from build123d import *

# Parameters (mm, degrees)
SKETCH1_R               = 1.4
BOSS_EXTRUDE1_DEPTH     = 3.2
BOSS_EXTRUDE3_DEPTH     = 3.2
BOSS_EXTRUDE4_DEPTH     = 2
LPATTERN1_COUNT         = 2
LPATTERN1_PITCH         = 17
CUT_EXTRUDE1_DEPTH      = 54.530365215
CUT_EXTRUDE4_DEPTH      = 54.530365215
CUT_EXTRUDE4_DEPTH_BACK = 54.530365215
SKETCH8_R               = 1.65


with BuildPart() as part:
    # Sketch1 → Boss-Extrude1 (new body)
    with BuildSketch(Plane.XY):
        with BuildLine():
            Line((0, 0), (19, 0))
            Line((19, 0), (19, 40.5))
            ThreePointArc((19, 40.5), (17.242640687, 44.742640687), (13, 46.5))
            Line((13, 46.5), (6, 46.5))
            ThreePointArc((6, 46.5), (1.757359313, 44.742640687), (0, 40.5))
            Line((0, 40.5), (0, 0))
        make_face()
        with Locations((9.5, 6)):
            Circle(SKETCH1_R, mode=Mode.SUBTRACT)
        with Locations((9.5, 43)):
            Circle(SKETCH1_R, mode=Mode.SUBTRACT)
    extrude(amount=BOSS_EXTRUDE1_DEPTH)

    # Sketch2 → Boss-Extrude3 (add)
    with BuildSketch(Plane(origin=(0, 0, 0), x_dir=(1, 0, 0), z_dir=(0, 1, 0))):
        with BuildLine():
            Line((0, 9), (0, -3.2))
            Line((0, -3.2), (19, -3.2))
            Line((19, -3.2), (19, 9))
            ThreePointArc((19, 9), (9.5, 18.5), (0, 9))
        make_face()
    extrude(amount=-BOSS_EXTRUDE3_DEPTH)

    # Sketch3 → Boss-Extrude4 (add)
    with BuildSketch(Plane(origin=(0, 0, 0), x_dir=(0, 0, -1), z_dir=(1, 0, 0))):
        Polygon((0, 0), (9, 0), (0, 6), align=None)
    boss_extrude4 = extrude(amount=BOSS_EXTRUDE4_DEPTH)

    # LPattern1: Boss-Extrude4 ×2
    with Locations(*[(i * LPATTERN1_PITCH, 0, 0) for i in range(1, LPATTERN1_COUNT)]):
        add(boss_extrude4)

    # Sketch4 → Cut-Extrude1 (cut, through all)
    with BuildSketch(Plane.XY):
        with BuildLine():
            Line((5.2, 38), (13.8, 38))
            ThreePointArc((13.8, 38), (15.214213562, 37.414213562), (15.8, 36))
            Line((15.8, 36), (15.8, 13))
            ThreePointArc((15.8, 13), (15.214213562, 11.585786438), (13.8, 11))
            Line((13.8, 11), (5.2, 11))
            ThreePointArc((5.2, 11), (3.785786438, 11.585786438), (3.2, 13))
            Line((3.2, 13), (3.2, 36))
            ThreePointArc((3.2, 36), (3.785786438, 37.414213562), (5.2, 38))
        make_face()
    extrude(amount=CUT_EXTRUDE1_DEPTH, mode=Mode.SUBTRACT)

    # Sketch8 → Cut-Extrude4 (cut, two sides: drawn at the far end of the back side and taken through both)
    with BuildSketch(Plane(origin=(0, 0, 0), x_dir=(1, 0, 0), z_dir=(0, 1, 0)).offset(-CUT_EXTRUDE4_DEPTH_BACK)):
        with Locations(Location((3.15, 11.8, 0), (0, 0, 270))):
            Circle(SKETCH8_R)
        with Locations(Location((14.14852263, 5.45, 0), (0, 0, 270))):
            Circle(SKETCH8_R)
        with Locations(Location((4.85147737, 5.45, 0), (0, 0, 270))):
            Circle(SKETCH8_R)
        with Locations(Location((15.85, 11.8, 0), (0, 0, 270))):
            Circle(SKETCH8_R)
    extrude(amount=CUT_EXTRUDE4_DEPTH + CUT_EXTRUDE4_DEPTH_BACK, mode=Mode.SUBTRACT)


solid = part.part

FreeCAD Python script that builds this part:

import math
import FreeCAD as App
import Part
import Sketcher
from FreeCAD import Vector
Q = App.Units.Quantity


def add_polygon(sketch, points):
    """Adds a closed chain of lines whose ends are joined by coincident constraints."""
    first, n = sketch.GeometryCount, len(points)
    for a, b in zip(points, points[1:] + points[:1]):
        sketch.addGeometry(Part.LineSegment(App.Vector(*a, 0), App.Vector(*b, 0)), False)
    for i in range(n):
        sketch.addConstraint(Sketcher.Constraint("Coincident", first + i, 2, first + (i + 1) % n, 1))

doc = App.newDocument("Part")
params = doc.addObject("Spreadsheet::Sheet", "Params")
for row, (alias, value) in enumerate([
    ("sketch1_radius", "6 mm"),
    ("sketch1_diameter", "2.8 mm"),
    ("sketch1_width", "19 mm"),
    ("sketch1_height", "40.5 mm"),
    ("pad1_length", "3.2 mm"),
    ("sketch2_radius", "9.5 mm"),
    ("sketch2_height", "12.2 mm"),
    ("pad2_length", "3.2 mm"),
    ("sketch3_width", "6 mm"),
    ("sketch3_height", "9 mm"),
    ("pad3_length", "2 mm"),
    ("linearpattern_pitch", "17 mm"),
    ("sketch4_radius", "2 mm"),
    ("sketch4_height", "23 mm"),
    ("sketch4_width", "8.6 mm"),
    ("sketch5_diameter", "3.3 mm"),
], start=1):
    params.set(f"A{row}", alias)
    params.set(f"B{row}", "=" + value)
    params.setAlias(f"B{row}", alias)

body = doc.addObject("PartDesign::Body", "Body")

sketch1 = body.newObject("Sketcher::SketchObject", "Sketch")
sketch1.AttachmentSupport = (doc.getObject("XY_Plane"), [""])
sketch1.MapMode = "FlatFace"
sketch1.addGeometry([
    Part.LineSegment(Vector(0, 0, 0), Vector(19, 0, 0)),
    Part.LineSegment(Vector(19, 0, 0), Vector(19, 40.5, 0)),
    Part.ArcOfCircle(Part.Circle(Vector(13, 40.5, 0), Vector(0, 0, 1), 6), math.radians(0), math.radians(90)),
    Part.LineSegment(Vector(13, 46.5, 0), Vector(6, 46.5, 0)),
    Part.ArcOfCircle(Part.Circle(Vector(6, 40.5, 0), Vector(0, 0, 1), 6), math.radians(90), math.radians(180)),
    Part.LineSegment(Vector(0, 40.5, 0), Vector(0, 0, 0)),
    Part.Circle(Vector(9.5, 6, 0), Vector(0, 0, 1), 1.4),
    Part.Circle(Vector(9.5, 43, 0), Vector(0, 0, 1), 1.4),
], False)
sketch1.addConstraint([
    Sketcher.Constraint("Coincident", 0, 2, 1, 1),
    Sketcher.Constraint("Tangent", 1, 2, 2, 1),
    Sketcher.Constraint("Tangent", 2, 2, 3, 1),
    Sketcher.Constraint("Tangent", 3, 2, 4, 1),
    Sketcher.Constraint("Tangent", 4, 2, 5, 1),
    Sketcher.Constraint("Coincident", 5, 2, 0, 1),
    Sketcher.Constraint("Horizontal", 0),
    Sketcher.Constraint("Vertical", 1),
    Sketcher.Constraint("Horizontal", 3),
    Sketcher.Constraint("Vertical", 5),
    Sketcher.Constraint("Coincident", 5, 2, -1, 1),
    Sketcher.Constraint("Equal", 2, 4),
    Sketcher.Constraint("Equal", 6, 7),
    Sketcher.Constraint("Vertical", 6, 3, 7, 3),
    Sketcher.Constraint("Radius", 2, Q("6 mm")),
    Sketcher.Constraint("Diameter", 6, Q("2.8 mm")),
    Sketcher.Constraint("DistanceX", 0, 1, 0, 2, Q("19 mm")),
    Sketcher.Constraint("DistanceY", 1, 1, 1, 2, Q("40.5 mm")),
    Sketcher.Constraint("DistanceY", -1, 1, 6, 3, Q("6 mm")),
    Sketcher.Constraint("DistanceY", -1, 1, 7, 3, Q("43 mm")),
    Sketcher.Constraint("DistanceX", -1, 1, 6, 3, Q("9.5 mm")),
])
sketch1.setExpression("Constraints[14]", "Params.sketch1_radius")
sketch1.setExpression("Constraints[15]", "Params.sketch1_diameter")
sketch1.setExpression("Constraints[16]", "Params.sketch1_width")
sketch1.setExpression("Constraints[17]", "Params.sketch1_height")
pad1 = body.newObject("PartDesign::Pad", "Pad")
pad1.Profile = sketch1
pad1.setExpression("Length", "Params.pad1_length")

sketch2 = body.newObject("Sketcher::SketchObject", "Sketch001")
sketch2.AttachmentSupport = (doc.getObject("XZ_Plane"), [""])
sketch2.MapMode = "FlatFace"
sketch2.addGeometry([
    Part.LineSegment(Vector(0, -9, 0), Vector(0, 3, 0)),
    Part.LineSegment(Vector(0, 3, 0), Vector(19, 3, 0)),
    Part.LineSegment(Vector(19, 3, 0), Vector(19, -9, 0)),
    Part.ArcOfCircle(Part.Circle(Vector(10, -9, 0), Vector(0, 0, 1), 10), math.radians(180), math.radians(360)),
], False)
sketch2.addConstraint([
    Sketcher.Constraint("Coincident", 0, 2, 1, 1),
    Sketcher.Constraint("Coincident", 1, 2, 2, 1),
    Sketcher.Constraint("Tangent", 2, 2, 3, 2),
    Sketcher.Constraint("Tangent", 3, 1, 0, 1),
    Sketcher.Constraint("Vertical", 0),
    Sketcher.Constraint("Horizontal", 1),
    Sketcher.Constraint("Vertical", 2),
    Sketcher.Constraint("PointOnObject", 0, 2, -2),
    Sketcher.Constraint("Radius", 3, Q("9.5 mm")),
    Sketcher.Constraint("DistanceY", 0, 1, 0, 2, Q("12.2 mm")),
    Sketcher.Constraint("DistanceY", 3, 3, -1, 1, Q("9 mm")),
])
sketch2.setExpression("Constraints[8]", "Params.sketch2_radius")
sketch2.setExpression("Constraints[9]", "Params.sketch2_height")
pad2 = body.newObject("PartDesign::Pad", "Pad001")
pad2.Profile = sketch2
pad2.setExpression("Length", "Params.pad2_length")

sketch3 = body.newObject("Sketcher::SketchObject", "Sketch002")
sketch3.AttachmentSupport = (doc.getObject("YZ_Plane"), [""])
sketch3.MapMode = "FlatFace"
add_polygon(sketch3, [(0, 0), (0, -9), (6, 0)])
sketch3.addConstraint([
    Sketcher.Constraint("Vertical", 0),
    Sketcher.Constraint("Horizontal", 2),
    Sketcher.Constraint("Coincident", 2, 2, -1, 1),
    Sketcher.Constraint("DistanceX", 2, 2, 2, 1, Q("6 mm")),
    Sketcher.Constraint("DistanceY", 0, 2, 0, 1, Q("9 mm")),
])
sketch3.setExpression("Constraints[6]", "Params.sketch3_width")
sketch3.setExpression("Constraints[7]", "Params.sketch3_height")
pad3 = body.newObject("PartDesign::Pad", "Pad002")
pad3.Profile = sketch3
pad3.setExpression("Length", "Params.pad3_length")
doc.recompute()

linearpattern = body.newObject("PartDesign::LinearPattern", "LinearPattern")
linearpattern.Originals = [pad3]
linearpattern.Direction = (doc.getObject("X_Axis"), [""])
linearpattern.Mode = "offset"
linearpattern.setExpression("Offset", "Params.linearpattern_pitch")
linearpattern.Occurrences = 2
body.Tip = linearpattern

sketch4 = body.newObject("Sketcher::SketchObject", "Sketch003")
sketch4.AttachmentSupport = (doc.getObject("XY_Plane"), [""])
sketch4.MapMode = "FlatFace"
sketch4.addGeometry([
    Part.LineSegment(Vector(13.8, 38, 0), Vector(5.2, 38, 0)),
    Part.ArcOfCircle(Part.Circle(Vector(5.2, 36, 0), Vector(0, 0, 1), 2), math.radians(90), math.radians(180)),
    Part.LineSegment(Vector(3.2, 36, 0), Vector(3.2, 13, 0)),
    Part.ArcOfCircle(Part.Circle(Vector(5.2, 13, 0), Vector(0, 0, 1), 2), math.radians(-180), math.radians(-90)),
    Part.LineSegment(Vector(5.2, 11, 0), Vector(13.8, 11, 0)),
    Part.ArcOfCircle(Part.Circle(Vector(13.8, 13, 0), Vector(0, 0, 1), 2), math.radians(-90), math.radians(0)),
    Part.LineSegment(Vector(15.8, 13, 0), Vector(15.8, 36, 0)),
    Part.ArcOfCircle(Part.Circle(Vector(13.8, 36, 0), Vector(0, 0, 1), 2), math.radians(0), math.radians(90)),
], False)
sketch4.addConstraint([
    Sketcher.Constraint("Tangent", 0, 2, 1, 1),
    Sketcher.Constraint("Tangent", 1, 2, 2, 1),
    Sketcher.Constraint("Tangent", 2, 2, 3, 1),
    Sketcher.Constraint("Tangent", 3, 2, 4, 1),
    Sketcher.Constraint("Tangent", 4, 2, 5, 1),
    Sketcher.Constraint("Tangent", 5, 2, 6, 1),
    Sketcher.Constraint("Tangent", 6, 2, 7, 1),
    Sketcher.Constraint("Tangent", 7, 2, 0, 1),
    Sketcher.Constraint("Horizontal", 0),
    Sketcher.Constraint("Vertical", 2),
    Sketcher.Constraint("Horizontal", 4),
    Sketcher.Constraint("Vertical", 6),
    Sketcher.Constraint("Equal", 1, 3),
    Sketcher.Constraint("Equal", 3, 5),
    Sketcher.Constraint("Equal", 5, 7),
    Sketcher.Constraint("Radius", 1, Q("2 mm")),
    Sketcher.Constraint("DistanceY", 2, 2, 2, 1, Q("23 mm")),
    Sketcher.Constraint("DistanceX", 0, 2, 0, 1, Q("8.6 mm")),
    Sketcher.Constraint("DistanceY", -1, 1, 1, 3, Q("36 mm")),
    Sketcher.Constraint("DistanceX", -1, 1, 1, 3, Q("5.2 mm")),
])
sketch4.setExpression("Constraints[15]", "Params.sketch4_radius")
sketch4.setExpression("Constraints[16]", "Params.sketch4_height")
sketch4.setExpression("Constraints[17]", "Params.sketch4_width")
pocket1 = body.newObject("PartDesign::Pocket", "Pocket")
pocket1.Profile = sketch4
pocket1.Type = "ThroughAll"
pocket1.Reversed = True

sketch5 = body.newObject("Sketcher::SketchObject", "Sketch004")
sketch5.AttachmentSupport = (doc.getObject("XZ_Plane"), [""])
sketch5.MapMode = "FlatFace"
sketch5.addGeometry([
    Part.Circle(Vector(3.1, -11.8, 0), Vector(0, 0, 1), 1.6),
    Part.Circle(Vector(14.1, -5.5, 0), Vector(0, 0, 1), 1.6),
    Part.Circle(Vector(4.9, -5.5, 0), Vector(0, 0, 1), 1.6),
    Part.Circle(Vector(15.8, -11.8, 0), Vector(0, 0, 1), 1.6),
], False)
sketch5.addConstraint([
    Sketcher.Constraint("Equal", 0, 1),
    Sketcher.Constraint("Equal", 1, 2),
    Sketcher.Constraint("Equal", 2, 3),
    Sketcher.Constraint("Horizontal", 1, 3, 2, 3),
    Sketcher.Constraint("Horizontal", 0, 3, 3, 3),
    Sketcher.Constraint("Diameter", 0, Q("3.3 mm")),
    Sketcher.Constraint("DistanceY", 0, 3, -1, 1, Q("11.8 mm")),
    Sketcher.Constraint("DistanceX", 0, 3, 3, 3, Q("12.7 mm")),
    Sketcher.Constraint("DistanceX", -1, 1, 0, 3, Q("3.15 mm")),
    Sketcher.Constraint("DistanceY", 1, 3, -1, 1, Q("5.45 mm")),
    Sketcher.Constraint("DistanceX", -1, 1, 1, 3, Q("14.148523 mm")),
    Sketcher.Constraint("DistanceX", -1, 1, 2, 3, Q("4.851477 mm")),
])
sketch5.setExpression("Constraints[5]", "Params.sketch5_diameter")
pocket2 = body.newObject("PartDesign::Pocket", "Pocket001")
pocket2.Profile = sketch5
pocket2.Type = "ThroughAll"
pocket2.Midplane = True

doc.recompute()
